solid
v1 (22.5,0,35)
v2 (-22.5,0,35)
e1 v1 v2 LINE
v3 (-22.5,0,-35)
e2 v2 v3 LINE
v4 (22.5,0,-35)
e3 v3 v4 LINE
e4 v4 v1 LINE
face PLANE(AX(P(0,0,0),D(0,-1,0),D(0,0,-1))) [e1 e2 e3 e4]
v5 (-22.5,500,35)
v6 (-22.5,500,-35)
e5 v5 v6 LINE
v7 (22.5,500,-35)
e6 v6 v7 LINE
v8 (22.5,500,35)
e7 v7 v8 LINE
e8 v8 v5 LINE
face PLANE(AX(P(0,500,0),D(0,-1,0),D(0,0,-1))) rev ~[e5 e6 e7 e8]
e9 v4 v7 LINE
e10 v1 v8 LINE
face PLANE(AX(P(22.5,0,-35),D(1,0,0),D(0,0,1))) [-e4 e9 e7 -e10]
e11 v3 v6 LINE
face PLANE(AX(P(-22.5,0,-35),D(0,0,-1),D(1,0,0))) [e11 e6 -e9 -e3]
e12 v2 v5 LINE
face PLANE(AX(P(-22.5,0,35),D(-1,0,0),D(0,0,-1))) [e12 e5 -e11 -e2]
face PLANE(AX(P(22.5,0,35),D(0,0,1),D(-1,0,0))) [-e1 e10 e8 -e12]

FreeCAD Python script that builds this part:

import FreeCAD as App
import Part
import Sketcher
Q = App.Units.Quantity

doc = App.newDocument("Part")
body = doc.addObject("PartDesign::Body", "Body")

sketch1 = doc.addObject("Sketcher::SketchObject", "Sketch")
body.addObject(sketch1)
sketch1.AttachmentSupport = (doc.XZ_Plane, [""])
sketch1.MapMode = "FlatFace"
sketch1.addGeometry(Part.LineSegment(App.Vector(-22, 35, 0), App.Vector(-22, -35, 0)), False)
sketch1.addGeometry(Part.LineSegment(App.Vector(-22, -35, 0), App.Vector(22, -35, 0)), False)
sketch1.addGeometry(Part.LineSegment(App.Vector(22, -35, 0), App.Vector(22, 35, 0)), False)
sketch1.addGeometry(Part.LineSegment(App.Vector(22, 35, 0), App.Vector(-22, 35, 0)), False)
sketch1.addConstraint(Sketcher.Constraint("Coincident", 0, 2, 1, 1))
sketch1.addConstraint(Sketcher.Constraint("Coincident", 1, 2, 2, 1))
sketch1.addConstraint(Sketcher.Constraint("Coincident", 2, 2, 3, 1))
sketch1.addConstraint(Sketcher.Constraint("Coincident", 3, 2, 0, 1))
sketch1.addConstraint(Sketcher.Constraint("Vertical", 0))
sketch1.addConstraint(Sketcher.Constraint("Horizontal", 1))
sketch1.addConstraint(Sketcher.Constraint("Vertical", 2))
sketch1.addConstraint(Sketcher.Constraint("Horizontal", 3))
sketch1.addConstraint(Sketcher.Constraint("Symmetric", 0, 2, 2, 2, -1, 1))
sketch1.addConstraint(Sketcher.Constraint("DistanceX", 1, 1, 1, 2, Q("45 mm")))
sketch1.addConstraint(Sketcher.Constraint("DistanceY", 0, 2, 0, 1, Q("70 mm")))
pad1 = doc.addObject("PartDesign::Pad", "Pad")
body.addObject(pad1)
pad1.Profile = sketch1
pad1.Length = 500
pad1.Reversed = True

doc.recompute()
